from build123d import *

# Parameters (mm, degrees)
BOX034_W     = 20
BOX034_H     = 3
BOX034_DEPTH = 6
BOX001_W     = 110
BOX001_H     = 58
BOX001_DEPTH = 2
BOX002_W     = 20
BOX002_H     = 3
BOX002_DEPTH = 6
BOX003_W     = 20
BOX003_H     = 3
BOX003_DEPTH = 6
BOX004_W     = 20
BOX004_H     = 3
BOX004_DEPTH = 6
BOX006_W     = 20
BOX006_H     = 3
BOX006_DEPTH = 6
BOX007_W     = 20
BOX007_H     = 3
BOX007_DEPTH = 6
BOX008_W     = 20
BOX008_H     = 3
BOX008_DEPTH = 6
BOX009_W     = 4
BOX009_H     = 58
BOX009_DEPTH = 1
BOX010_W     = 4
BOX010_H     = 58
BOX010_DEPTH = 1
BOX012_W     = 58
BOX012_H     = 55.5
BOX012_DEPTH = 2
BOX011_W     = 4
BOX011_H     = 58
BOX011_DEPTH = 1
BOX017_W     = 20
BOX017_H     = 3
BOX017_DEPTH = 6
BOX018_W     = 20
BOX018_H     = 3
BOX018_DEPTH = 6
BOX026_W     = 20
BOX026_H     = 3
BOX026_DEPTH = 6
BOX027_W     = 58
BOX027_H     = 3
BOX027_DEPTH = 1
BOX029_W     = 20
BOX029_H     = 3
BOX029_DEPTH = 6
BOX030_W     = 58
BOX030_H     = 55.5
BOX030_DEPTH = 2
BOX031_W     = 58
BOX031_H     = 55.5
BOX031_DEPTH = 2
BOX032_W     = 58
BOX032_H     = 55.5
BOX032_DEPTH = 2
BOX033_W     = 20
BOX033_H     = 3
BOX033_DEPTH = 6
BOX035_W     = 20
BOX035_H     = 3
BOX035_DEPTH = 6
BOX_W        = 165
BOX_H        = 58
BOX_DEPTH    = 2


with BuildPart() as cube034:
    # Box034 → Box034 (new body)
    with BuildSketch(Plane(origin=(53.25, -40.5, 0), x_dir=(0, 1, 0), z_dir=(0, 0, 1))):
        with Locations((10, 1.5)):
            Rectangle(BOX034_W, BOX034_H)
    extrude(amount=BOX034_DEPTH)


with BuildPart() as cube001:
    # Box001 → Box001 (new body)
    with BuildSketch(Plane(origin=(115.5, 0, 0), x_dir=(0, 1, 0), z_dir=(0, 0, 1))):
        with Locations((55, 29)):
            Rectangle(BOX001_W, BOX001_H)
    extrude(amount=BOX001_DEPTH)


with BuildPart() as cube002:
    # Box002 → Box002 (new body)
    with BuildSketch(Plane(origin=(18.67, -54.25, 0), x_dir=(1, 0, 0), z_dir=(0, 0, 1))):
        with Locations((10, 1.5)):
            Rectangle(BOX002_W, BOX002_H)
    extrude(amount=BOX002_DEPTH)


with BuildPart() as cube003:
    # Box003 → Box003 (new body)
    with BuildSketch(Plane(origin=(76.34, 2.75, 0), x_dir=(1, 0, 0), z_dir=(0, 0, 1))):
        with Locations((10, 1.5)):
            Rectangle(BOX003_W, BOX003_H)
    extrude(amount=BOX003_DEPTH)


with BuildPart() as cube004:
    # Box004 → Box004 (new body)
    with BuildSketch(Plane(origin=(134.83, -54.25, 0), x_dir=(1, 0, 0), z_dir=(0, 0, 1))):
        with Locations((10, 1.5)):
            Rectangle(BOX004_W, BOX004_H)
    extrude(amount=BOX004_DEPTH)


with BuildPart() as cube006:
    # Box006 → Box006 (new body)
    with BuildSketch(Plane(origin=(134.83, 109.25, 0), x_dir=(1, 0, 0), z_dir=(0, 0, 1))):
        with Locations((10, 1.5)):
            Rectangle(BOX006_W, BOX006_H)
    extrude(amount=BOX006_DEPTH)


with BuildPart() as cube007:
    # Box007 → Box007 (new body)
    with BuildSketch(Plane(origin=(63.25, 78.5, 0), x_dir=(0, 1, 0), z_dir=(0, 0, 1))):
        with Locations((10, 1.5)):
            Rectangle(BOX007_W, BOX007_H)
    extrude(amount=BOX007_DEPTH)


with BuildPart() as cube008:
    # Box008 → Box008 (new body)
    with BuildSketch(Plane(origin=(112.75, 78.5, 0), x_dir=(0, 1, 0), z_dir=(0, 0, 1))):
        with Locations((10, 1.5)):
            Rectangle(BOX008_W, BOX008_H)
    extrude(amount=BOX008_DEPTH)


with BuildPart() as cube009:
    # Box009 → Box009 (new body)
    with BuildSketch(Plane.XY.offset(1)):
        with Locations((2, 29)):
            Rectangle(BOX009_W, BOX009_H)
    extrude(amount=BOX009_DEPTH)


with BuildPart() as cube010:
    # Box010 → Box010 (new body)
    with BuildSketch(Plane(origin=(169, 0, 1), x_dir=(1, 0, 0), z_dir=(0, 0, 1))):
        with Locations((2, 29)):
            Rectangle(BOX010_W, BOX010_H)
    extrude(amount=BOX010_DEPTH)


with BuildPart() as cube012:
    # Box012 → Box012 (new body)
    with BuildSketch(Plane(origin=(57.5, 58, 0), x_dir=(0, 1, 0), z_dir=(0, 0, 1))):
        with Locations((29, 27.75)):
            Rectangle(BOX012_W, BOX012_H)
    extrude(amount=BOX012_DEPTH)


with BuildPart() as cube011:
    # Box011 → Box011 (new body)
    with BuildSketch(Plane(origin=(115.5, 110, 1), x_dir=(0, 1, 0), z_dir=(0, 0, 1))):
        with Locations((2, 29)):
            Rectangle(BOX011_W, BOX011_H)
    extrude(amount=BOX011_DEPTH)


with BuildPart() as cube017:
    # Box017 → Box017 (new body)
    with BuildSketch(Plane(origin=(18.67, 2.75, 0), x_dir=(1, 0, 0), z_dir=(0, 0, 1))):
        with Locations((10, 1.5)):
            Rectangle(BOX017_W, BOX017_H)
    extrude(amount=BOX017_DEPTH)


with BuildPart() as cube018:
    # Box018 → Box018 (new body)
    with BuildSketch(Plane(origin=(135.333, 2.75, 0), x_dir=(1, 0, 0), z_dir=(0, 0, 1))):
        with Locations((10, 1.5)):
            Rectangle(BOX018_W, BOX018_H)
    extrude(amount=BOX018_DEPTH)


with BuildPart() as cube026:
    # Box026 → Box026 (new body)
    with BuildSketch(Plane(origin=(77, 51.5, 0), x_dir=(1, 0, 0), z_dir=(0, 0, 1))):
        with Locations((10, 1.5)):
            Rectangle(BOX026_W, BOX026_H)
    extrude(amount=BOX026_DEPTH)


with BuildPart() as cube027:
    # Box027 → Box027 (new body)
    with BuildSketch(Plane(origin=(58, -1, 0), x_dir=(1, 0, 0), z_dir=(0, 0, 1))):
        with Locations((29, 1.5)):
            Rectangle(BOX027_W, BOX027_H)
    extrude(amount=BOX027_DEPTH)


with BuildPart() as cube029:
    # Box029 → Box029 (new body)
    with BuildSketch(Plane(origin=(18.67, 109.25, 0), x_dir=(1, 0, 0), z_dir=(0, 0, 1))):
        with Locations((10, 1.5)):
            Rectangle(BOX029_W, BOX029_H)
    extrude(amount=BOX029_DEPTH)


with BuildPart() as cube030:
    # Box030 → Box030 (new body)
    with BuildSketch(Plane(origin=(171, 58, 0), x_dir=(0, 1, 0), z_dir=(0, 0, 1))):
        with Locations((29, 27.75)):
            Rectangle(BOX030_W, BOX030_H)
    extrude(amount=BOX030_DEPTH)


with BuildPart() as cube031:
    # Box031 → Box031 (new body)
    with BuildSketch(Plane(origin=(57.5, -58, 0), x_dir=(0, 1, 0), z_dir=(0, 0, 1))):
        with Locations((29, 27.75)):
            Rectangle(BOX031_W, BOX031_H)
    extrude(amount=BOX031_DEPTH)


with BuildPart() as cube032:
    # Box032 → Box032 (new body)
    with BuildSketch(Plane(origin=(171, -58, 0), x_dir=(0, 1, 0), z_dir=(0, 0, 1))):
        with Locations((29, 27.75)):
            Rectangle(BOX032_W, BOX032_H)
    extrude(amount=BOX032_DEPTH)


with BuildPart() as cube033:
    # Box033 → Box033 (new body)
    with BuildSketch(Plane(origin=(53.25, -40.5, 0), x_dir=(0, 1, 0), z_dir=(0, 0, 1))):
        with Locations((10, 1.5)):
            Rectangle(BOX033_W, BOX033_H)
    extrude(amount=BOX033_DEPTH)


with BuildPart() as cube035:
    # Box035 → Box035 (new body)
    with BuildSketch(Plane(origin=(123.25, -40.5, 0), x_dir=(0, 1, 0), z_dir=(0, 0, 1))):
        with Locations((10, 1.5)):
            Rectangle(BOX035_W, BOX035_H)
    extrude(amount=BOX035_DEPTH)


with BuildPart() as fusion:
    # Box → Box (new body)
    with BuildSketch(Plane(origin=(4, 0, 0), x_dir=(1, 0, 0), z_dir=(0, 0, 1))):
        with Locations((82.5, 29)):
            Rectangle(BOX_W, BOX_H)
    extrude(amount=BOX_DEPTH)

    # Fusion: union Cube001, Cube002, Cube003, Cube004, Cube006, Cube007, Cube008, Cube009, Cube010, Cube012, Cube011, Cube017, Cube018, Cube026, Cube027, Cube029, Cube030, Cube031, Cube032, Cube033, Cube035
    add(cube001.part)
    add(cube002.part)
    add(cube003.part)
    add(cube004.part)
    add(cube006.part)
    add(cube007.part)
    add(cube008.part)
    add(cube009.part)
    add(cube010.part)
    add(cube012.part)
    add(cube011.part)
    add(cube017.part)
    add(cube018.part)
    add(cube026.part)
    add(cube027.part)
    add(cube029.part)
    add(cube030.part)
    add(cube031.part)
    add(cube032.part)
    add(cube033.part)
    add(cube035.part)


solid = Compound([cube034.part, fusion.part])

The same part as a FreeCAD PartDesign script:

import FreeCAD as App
import Part
import Sketcher

V = App.Vector


def add_polygon(sketch, points):
    """Adds a closed chain of lines whose ends are joined by coincident constraints."""
    first, n = sketch.GeometryCount, len(points)
    for a, b in zip(points, points[1:] + points[:1]):
        sketch.addGeometry(Part.LineSegment(App.Vector(*a, 0), App.Vector(*b, 0)), False)
    for i in range(n):
        sketch.addConstraint(Sketcher.Constraint("Coincident", first + i, 2, first + (i + 1) % n, 1))

doc = App.newDocument("Part")
params = doc.addObject("Spreadsheet::Sheet", "Params")
for row, (alias, value) in enumerate([
    ("sketch1_width", "3 mm"),
    ("sketch1_height", "20 mm"),
    ("pad1_length", "6 mm"),
    ("sketch2_width", "58 mm"),
    ("sketch2_height", "110 mm"),
    ("pad2_length", "2 mm"),
    ("sketch3_width", "20 mm"),
    ("sketch3_height", "3 mm"),
    ("pad3_length", "6 mm"),
    ("sketch4_width", "20 mm"),
    ("sketch4_height", "3 mm"),
    ("pad4_length", "6 mm"),
    ("sketch5_width", "20 mm"),
    ("sketch5_height", "3 mm"),
    ("pad5_length", "6 mm"),
    ("sketch6_width", "20 mm"),
    ("sketch6_height", "3 mm"),
    ("pad6_length", "6 mm"),
    ("sketch7_width", "3 mm"),
    ("sketch7_height", "20 mm"),
    ("pad7_length", "6 mm"),
    ("sketch8_width", "3 mm"),
    ("sketch8_height", "20 mm"),
    ("pad8_length", "6 mm"),
    ("sketch9_width", "4 mm"),
    ("sketch9_height", "58 mm"),
    ("pad9_length", "1 mm"),
    ("sketch10_width", "4 mm"),
    ("sketch10_height", "58 mm"),
    ("pad10_length", "1 mm"),
    ("sketch11_height", "58 mm"),
    ("sketch11_width", "55.5 mm"),
    ("pad11_length", "2 mm"),
    ("sketch12_width", "58 mm"),
    ("sketch12_height", "4 mm"),
    ("pad12_length", "1 mm"),
    ("sketch13_width", "20 mm"),
    ("sketch13_height", "3 mm"),
    ("pad13_length", "6 mm"),
    ("sketch14_width", "20 mm"),
    ("sketch14_height", "3 mm"),
    ("pad14_length", "6 mm"),
    ("sketch15_width", "20 mm"),
    ("sketch15_height", "3 mm"),
    ("pad15_length", "6 mm"),
    ("sketch16_width", "58 mm"),
    ("sketch16_height", "3 mm"),
    ("pad16_length", "1 mm"),
    ("sketch17_width", "20 mm"),
    ("sketch17_height", "3 mm"),
    ("pad17_length", "6 mm"),
    ("sketch18_height", "58 mm"),
    ("sketch18_width", "55.5 mm"),
    ("pad18_length", "2 mm"),
    ("sketch19_height", "58 mm"),
    ("sketch19_width", "55.5 mm"),
    ("pad19_length", "2 mm"),
    ("sketch20_height", "58 mm"),
    ("sketch20_width", "55.5 mm"),
    ("pad20_length", "2 mm"),
    ("sketch21_width", "3 mm"),
    ("sketch21_height", "20 mm"),
    ("pad21_length", "6 mm"),
    ("sketch22_width", "3 mm"),
    ("sketch22_height", "20 mm"),
    ("pad22_length", "6 mm"),
    ("sketch23_width", "165 mm"),
    ("sketch23_height", "58 mm"),
    ("pad23_length", "2 mm"),
], start=1):
    params.set(f"A{row}", alias)
    params.set(f"B{row}", "=" + value)
    params.setAlias(f"B{row}", alias)

body = doc.addObject("PartDesign::Body", "Body")

sketch1 = body.newObject("Sketcher::SketchObject", "Sketch")
sketch1.AttachmentSupport = (doc.getObject("XY_Plane"), [""])
sketch1.MapMode = "FlatFace"
add_polygon(sketch1, [(50.2, -40.5), (53.2, -40.5), (53.2, -20.5), (50.2, -20.5)])
sketch1.addConstraint([
    Sketcher.Constraint("Horizontal", 0),
    Sketcher.Constraint("Vertical", 1),
    Sketcher.Constraint("Horizontal", 2),
    Sketcher.Constraint("Vertical", 3),
    Sketcher.Constraint("DistanceX", 0, 1, 0, 2, 3.0),
    Sketcher.Constraint("DistanceY", 1, 1, 1, 2, 20.0),
    Sketcher.Constraint("DistanceY", 0, 2, -1, 1, 40.5),
    Sketcher.Constraint("DistanceX", -1, 1, 0, 2, 53.25),
])
sketch1.setExpression("Constraints[8]", "Params.sketch1_width")
sketch1.setExpression("Constraints[9]", "Params.sketch1_height")
pad1 = body.newObject("PartDesign::Pad", "Pad")
pad1.Profile = sketch1
pad1.setExpression("Length", "Params.pad1_length")
body2 = doc.addObject("PartDesign::Body", "Body001")

sketch2 = body2.newObject("Sketcher::SketchObject", "Sketch001")
sketch2.AttachmentSupport = (doc.getObject("XY_Plane001"), [""])
sketch2.MapMode = "FlatFace"
add_polygon(sketch2, [(58, 0), (116, 0), (116, 110), (58, 110)])
sketch2.addConstraint([
    Sketcher.Constraint("Horizontal", 0),
    Sketcher.Constraint("Vertical", 1),
    Sketcher.Constraint("Horizontal", 2),
    Sketcher.Constraint("Vertical", 3),
    Sketcher.Constraint("PointOnObject", 0, 2, -1),
    Sketcher.Constraint("DistanceX", 0, 1, 0, 2, 58.0),
    Sketcher.Constraint("DistanceY", 1, 1, 1, 2, 110.0),
    Sketcher.Constraint("DistanceX", -1, 1, 0, 2, 115.5),
])
sketch2.setExpression("Constraints[9]", "Params.sketch2_width")
sketch2.setExpression("Constraints[10]", "Params.sketch2_height")
pad2 = body2.newObject("PartDesign::Pad", "Pad001")
pad2.Profile = sketch2
pad2.setExpression("Length", "Params.pad2_length")
body3 = doc.addObject("PartDesign::Body", "Body002")

sketch3 = body3.newObject("Sketcher::SketchObject", "Sketch002")
sketch3.AttachmentSupport = (doc.getObject("XY_Plane002"), [""])
sketch3.MapMode = "FlatFace"
add_polygon(sketch3, [(18.7, -51.2), (18.7, -54.2), (38.7, -54.2), (38.7, -51.2)])
sketch3.addConstraint([
    Sketcher.Constraint("Vertical", 0),
    Sketcher.Constraint("Horizontal", 1),
    Sketcher.Constraint("Vertical", 2),
    Sketcher.Constraint("Horizontal", 3),
    Sketcher.Constraint("DistanceX", 1, 1, 1, 2, 20.0),
    Sketcher.Constraint("DistanceY", 0, 2, 0, 1, 3.0),
    Sketcher.Constraint("DistanceX", -1, 1, 0, 2, 18.67),
    Sketcher.Constraint("DistanceY", 0, 2, -1, 1, 54.25),
])
sketch3.setExpression("Constraints[8]", "Params.sketch3_width")
sketch3.setExpression("Constraints[9]", "Params.sketch3_height")
pad3 = body3.newObject("PartDesign::Pad", "Pad002")
pad3.Profile = sketch3
pad3.setExpression("Length", "Params.pad3_length")
body4 = doc.addObject("PartDesign::Body", "Body003")

sketch4 = body4.newObject("Sketcher::SketchObject", "Sketch003")
sketch4.AttachmentSupport = (doc.getObject("XY_Plane003"), [""])
sketch4.MapMode = "FlatFace"
add_polygon(sketch4, [(76.3, 5.8), (76.3, 2.8), (96.3, 2.8), (96.3, 5.8)])
sketch4.addConstraint([
    Sketcher.Constraint("Vertical", 0),
    Sketcher.Constraint("Horizontal", 1),
    Sketcher.Constraint("Vertical", 2),
    Sketcher.Constraint("Horizontal", 3),
    Sketcher.Constraint("DistanceX", 1, 1, 1, 2, 20.0),
    Sketcher.Constraint("DistanceY", 0, 2, 0, 1, 3.0),
    Sketcher.Constraint("DistanceX", -1, 1, 0, 2, 76.34),
    Sketcher.Constraint("DistanceY", -1, 1, 0, 2, 2.75),
])
sketch4.setExpression("Constraints[8]", "Params.sketch4_width")
sketch4.setExpression("Constraints[9]", "Params.sketch4_height")
pad4 = body4.newObject("PartDesign::Pad", "Pad003")
pad4.Profile = sketch4
pad4.setExpression("Length", "Params.pad4_length")
body5 = doc.addObject("PartDesign::Body", "Body004")

sketch5 = body5.newObject("Sketcher::SketchObject", "Sketch004")
sketch5.AttachmentSupport = (doc.getObject("XY_Plane004"), [""])
sketch5.MapMode = "FlatFace"
add_polygon(sketch5, [(134.8, -51.2), (134.8, -54.2), (154.8, -54.2), (154.8, -51.2)])
sketch5.addConstraint([
    Sketcher.Constraint("Vertical", 0),
    Sketcher.Constraint("Horizontal", 1),
    Sketcher.Constraint("Vertical", 2),
    Sketcher.Constraint("Horizontal", 3),
    Sketcher.Constraint("DistanceX", 1, 1, 1, 2, 20.0),
    Sketcher.Constraint("DistanceY", 0, 2, 0, 1, 3.0),
    Sketcher.Constraint("DistanceX", -1, 1, 0, 2, 134.83),
    Sketcher.Constraint("DistanceY", 0, 2, -1, 1, 54.25),
])
sketch5.setExpression("Constraints[8]", "Params.sketch5_width")
sketch5.setExpression("Constraints[9]", "Params.sketch5_height")
pad5 = body5.newObject("PartDesign::Pad", "Pad004")
pad5.Profile = sketch5
pad5.setExpression("Length", "Params.pad5_length")
body6 = doc.addObject("PartDesign::Body", "Body005")

sketch6 = body6.newObject("Sketcher::SketchObject", "Sketch005")
sketch6.AttachmentSupport = (doc.getObject("XY_Plane005"), [""])
sketch6.MapMode = "FlatFace"
add_polygon(sketch6, [(134.8, 112.2), (134.8, 109.2), (154.8, 109.2), (154.8, 112.2)])
sketch6.addConstraint([
    Sketcher.Constraint("Vertical", 0),
    Sketcher.Constraint("Horizontal", 1),
    Sketcher.Constraint("Vertical", 2),
    Sketcher.Constraint("Horizontal", 3),
    Sketcher.Constraint("DistanceX", 1, 1, 1, 2, 20.0),
    Sketcher.Constraint("DistanceY", 0, 2, 0, 1, 3.0),
    Sketcher.Constraint("DistanceX", -1, 1, 0, 2, 134.83),
    Sketcher.Constraint("DistanceY", -1, 1, 0, 2, 109.25),
])
sketch6.setExpression("Constraints[8]", "Params.sketch6_width")
sketch6.setExpression("Constraints[9]", "Params.sketch6_height")
pad6 = body6.newObject("PartDesign::Pad", "Pad005")
pad6.Profile = sketch6
pad6.setExpression("Length", "Params.pad6_length")
body7 = doc.addObject("PartDesign::Body", "Body006")

sketch7 = body7.newObject("Sketcher::SketchObject", "Sketch006")
sketch7.AttachmentSupport = (doc.getObject("XY_Plane006"), [""])
sketch7.MapMode = "FlatFace"
add_polygon(sketch7, [(60.2, 78.5), (63.2, 78.5), (63.2, 98.5), (60.2, 98.5)])
sketch7.addConstraint([
    Sketcher.Constraint("Horizontal", 0),
    Sketcher.Constraint("Vertical", 1),
    Sketcher.Constraint("Horizontal", 2),
    Sketcher.Constraint("Vertical", 3),
    Sketcher.Constraint("DistanceX", 0, 1, 0, 2, 3.0),
    Sketcher.Constraint("DistanceY", 1, 1, 1, 2, 20.0),
    Sketcher.Constraint("DistanceY", -1, 1, 0, 2, 78.5),
    Sketcher.Constraint("DistanceX", -1, 1, 0, 2, 63.25),
])
sketch7.setExpression("Constraints[8]", "Params.sketch7_width")
sketch7.setExpression("Constraints[9]", "Params.sketch7_height")
pad7 = body7.newObject("PartDesign::Pad", "Pad006")
pad7.Profile = sketch7
pad7.setExpression("Length", "Params.pad7_length")
body8 = doc.addObject("PartDesign::Body", "Body007")

sketch8 = body8.newObject("Sketcher::SketchObject", "Sketch007")
sketch8.AttachmentSupport = (doc.getObject("XY_Plane007"), [""])
sketch8.MapMode = "FlatFace"
add_polygon(sketch8, [(109.8, 78.5), (112.8, 78.5), (112.8, 98.5), (109.8, 98.5)])
sketch8.addConstraint([
    Sketcher.Constraint("Horizontal", 0),
    Sketcher.Constraint("Vertical", 1),
    Sketcher.Constraint("Horizontal", 2),
    Sketcher.Constraint("Vertical", 3),
    Sketcher.Constraint("DistanceX", 0, 1, 0, 2, 3.0),
    Sketcher.Constraint("DistanceY", 1, 1, 1, 2, 20.0),
    Sketcher.Constraint("DistanceY", -1, 1, 0, 2, 78.5),
    Sketcher.Constraint("DistanceX", -1, 1, 0, 2, 112.75),
])
sketch8.setExpression("Constraints[8]", "Params.sketch8_width")
sketch8.setExpression("Constraints[9]", "Params.sketch8_height")
pad8 = body8.newObject("PartDesign::Pad", "Pad007")
pad8.Profile = sketch8
pad8.setExpression("Length", "Params.pad8_length")
body9 = doc.addObject("PartDesign::Body", "Body008")

sketch9 = body9.newObject("Sketcher::SketchObject", "Sketch008")
sketch9.AttachmentSupport = (doc.getObject("XY_Plane008"), [""])
sketch9.MapMode = "FlatFace"
sketch9.AttachmentOffset = App.Placement(V(0, 0, 1), App.Rotation())
add_polygon(sketch9, [(0, 58), (0, 0), (4, 0), (4, 58)])
sketch9.addConstraint([
    Sketcher.Constraint("Vertical", 0),
    Sketcher.Constraint("Horizontal", 1),
    Sketcher.Constraint("Vertical", 2),
    Sketcher.Constraint("Horizontal", 3),
    Sketcher.Constraint("Coincident", 0, 2, -1, 1),
    Sketcher.Constraint("DistanceX", 1, 1, 1, 2, 4.0),
    Sketcher.Constraint("DistanceY", 0, 2, 0, 1, 58.0),
])
sketch9.setExpression("Constraints[9]", "Params.sketch9_width")
sketch9.setExpression("Constraints[10]", "Params.sketch9_height")
pad9 = body9.newObject("PartDesign::Pad", "Pad008")
pad9.Profile = sketch9
pad9.setExpression("Length", "Params.pad9_length")
body10 = doc.addObject("PartDesign::Body", "Body009")

sketch10 = body10.newObject("Sketcher::SketchObject", "Sketch009")
sketch10.AttachmentSupport = (doc.getObject("XY_Plane009"), [""])
sketch10.MapMode = "FlatFace"
sketch10.AttachmentOffset = App.Placement(V(0, 0, 1), App.Rotation())
add_polygon(sketch10, [(169, 58), (169, 0), (173, 0), (173, 58)])
sketch10.addConstraint([
    Sketcher.Constraint("Vertical", 0),
    Sketcher.Constraint("Horizontal", 1),
    Sketcher.Constraint("Vertical", 2),
    Sketcher.Constraint("Horizontal", 3),
    Sketcher.Constraint("PointOnObject", 0, 2, -1),
    Sketcher.Constraint("DistanceX", 1, 1, 1, 2, 4.0),
    Sketcher.Constraint("DistanceY", 0, 2, 0, 1, 58.0),
    Sketcher.Constraint("DistanceX", -1, 1, 0, 2, 169.0),
])
sketch10.setExpression("Constraints[9]", "Params.sketch10_width")
sketch10.setExpression("Constraints[10]", "Params.sketch10_height")
pad10 = body10.newObject("PartDesign::Pad", "Pad009")
pad10.Profile = sketch10
pad10.setExpression("Length", "Params.pad10_length")
body11 = doc.addObject("PartDesign::Body", "Body010")

sketch11 = body11.newObject("Sketcher::SketchObject", "Sketch010")
sketch11.AttachmentSupport = (doc.getObject("XY_Plane010"), [""])
sketch11.MapMode = "FlatFace"
add_polygon(sketch11, [(2, 58), (58, 58), (58, 116), (2, 116)])
sketch11.addConstraint([
    Sketcher.Constraint("Horizontal", 0),
    Sketcher.Constraint("Vertical", 1),
    Sketcher.Constraint("Horizontal", 2),
    Sketcher.Constraint("Vertical", 3),
    Sketcher.Constraint("DistanceY", 1, 1, 1, 2, 58.0),
    Sketcher.Constraint("DistanceX", 0, 1, 0, 2, 55.5),
    Sketcher.Constraint("DistanceY", -1, 1, 0, 2, 58.0),
    Sketcher.Constraint("DistanceX", -1, 1, 2, 2, 2.0),
])
sketch11.setExpression("Constraints[8]", "Params.sketch11_height")
sketch11.setExpression("Constraints[9]", "Params.sketch11_width")
pad11 = body11.newObject("PartDesign::Pad", "Pad010")
pad11.Profile = sketch11
pad11.setExpression("Length", "Params.pad11_length")
body12 = doc.addObject("PartDesign::Body", "Body011")

sketch12 = body12.newObject("Sketcher::SketchObject", "Sketch011")
sketch12.AttachmentSupport = (doc.getObject("XY_Plane011"), [""])
sketch12.MapMode = "FlatFace"
sketch12.AttachmentOffset = App.Placement(V(0, 0, 1), App.Rotation())
add_polygon(sketch12, [(57.5, 110), (115.5, 110), (115.5, 114), (57.5, 114)])
sketch12.addConstraint([
    Sketcher.Constraint("Horizontal", 0),
    Sketcher.Constraint("Vertical", 1),
    Sketcher.Constraint("Horizontal", 2),
    Sketcher.Constraint("Vertical", 3),
    Sketcher.Constraint("DistanceX", 0, 1, 0, 2, 58.0),
    Sketcher.Constraint("DistanceY", 1, 1, 1, 2, 4.0),
    Sketcher.Constraint("DistanceY", -1, 1, 0, 2, 110.0),
    Sketcher.Constraint("DistanceX", -1, 1, 0, 2, 115.5),
])
sketch12.setExpression("Constraints[8]", "Params.sketch12_width")
sketch12.setExpression("Constraints[9]", "Params.sketch12_height")
pad12 = body12.newObject("PartDesign::Pad", "Pad011")
pad12.Profile = sketch12
pad12.setExpression("Length", "Params.pad12_length")
body13 = doc.addObject("PartDesign::Body", "Body012")

sketch13 = body13.newObject("Sketcher::SketchObject", "Sketch012")
sketch13.AttachmentSupport = (doc.getObject("XY_Plane012"), [""])
sketch13.MapMode = "FlatFace"
add_polygon(sketch13, [(18.7, 5.8), (18.7, 2.8), (38.7, 2.8), (38.7, 5.8)])
sketch13.addConstraint([
    Sketcher.Constraint("Vertical", 0),
    Sketcher.Constraint("Horizontal", 1),
    Sketcher.Constraint("Vertical", 2),
    Sketcher.Constraint("Horizontal", 3),
    Sketcher.Constraint("DistanceX", 1, 1, 1, 2, 20.0),
    Sketcher.Constraint("DistanceY", 0, 2, 0, 1, 3.0),
    Sketcher.Constraint("DistanceX", -1, 1, 0, 2, 18.67),
    Sketcher.Constraint("DistanceY", -1, 1, 0, 2, 2.75),
])
sketch13.setExpression("Constraints[8]", "Params.sketch13_width")
sketch13.setExpression("Constraints[9]", "Params.sketch13_height")
pad13 = body13.newObject("PartDesign::Pad", "Pad012")
pad13.Profile = sketch13
pad13.setExpression("Length", "Params.pad13_length")
body14 = doc.addObject("PartDesign::Body", "Body013")

sketch14 = body14.newObject("Sketcher::SketchObject", "Sketch013")
sketch14.AttachmentSupport = (doc.getObject("XY_Plane013"), [""])
sketch14.MapMode = "FlatFace"
add_polygon(sketch14, [(135.3, 5.8), (135.3, 2.8), (155.3, 2.8), (155.3, 5.8)])
sketch14.addConstraint([
    Sketcher.Constraint("Vertical", 0),
    Sketcher.Constraint("Horizontal", 1),
    Sketcher.Constraint("Vertical", 2),
    Sketcher.Constraint("Horizontal", 3),
    Sketcher.Constraint("DistanceX", 1, 1, 1, 2, 20.0),
    Sketcher.Constraint("DistanceY", 0, 2, 0, 1, 3.0),
    Sketcher.Constraint("DistanceY", -1, 1, 0, 2, 2.75),
    Sketcher.Constraint("DistanceX", -1, 1, 0, 2, 135.333),
])
sketch14.setExpression("Constraints[8]", "Params.sketch14_width")
sketch14.setExpression("Constraints[9]", "Params.sketch14_height")
pad14 = body14.newObject("PartDesign::Pad", "Pad013")
pad14.Profile = sketch14
pad14.setExpression("Length", "Params.pad14_length")
body15 = doc.addObject("PartDesign::Body", "Body014")

sketch15 = body15.newObject("Sketcher::SketchObject", "Sketch014")
sketch15.AttachmentSupport = (doc.getObject("XY_Plane014"), [""])
sketch15.MapMode = "FlatFace"
add_polygon(sketch15, [(77, 54.5), (77, 51.5), (97, 51.5), (97, 54.5)])
sketch15.addConstraint([
    Sketcher.Constraint("Vertical", 0),
    Sketcher.Constraint("Horizontal", 1),
    Sketcher.Constraint("Vertical", 2),
    Sketcher.Constraint("Horizontal", 3),
    Sketcher.Constraint("DistanceX", 1, 1, 1, 2, 20.0),
    Sketcher.Constraint("DistanceY", 0, 2, 0, 1, 3.0),
    Sketcher.Constraint("DistanceX", -1, 1, 0, 2, 77.0),
    Sketcher.Constraint("DistanceY", -1, 1, 0, 2, 51.5),
])
sketch15.setExpression("Constraints[8]", "Params.sketch15_width")
sketch15.setExpression("Constraints[9]", "Params.sketch15_height")
pad15 = body15.newObject("PartDesign::Pad", "Pad014")
pad15.Profile = sketch15
pad15.setExpression("Length", "Params.pad15_length")
body16 = doc.addObject("PartDesign::Body", "Body015")

sketch16 = body16.newObject("Sketcher::SketchObject", "Sketch015")
sketch16.AttachmentSupport = (doc.getObject("XY_Plane015"), [""])
sketch16.MapMode = "FlatFace"
add_polygon(sketch16, [(58, 2), (58, -1), (116, -1), (116, 2)])
sketch16.addConstraint([
    Sketcher.Constraint("Vertical", 0),
    Sketcher.Constraint("Horizontal", 1),
    Sketcher.Constraint("Vertical", 2),
    Sketcher.Constraint("Horizontal", 3),
    Sketcher.Constraint("DistanceX", 1, 1, 1, 2, 58.0),
    Sketcher.Constraint("DistanceY", 0, 2, 0, 1, 3.0),
    Sketcher.Constraint("DistanceX", -1, 1, 0, 2, 58.0),
    Sketcher.Constraint("DistanceY", 0, 2, -1, 1, 1.0),
])
sketch16.setExpression("Constraints[8]", "Params.sketch16_width")
sketch16.setExpression("Constraints[9]", "Params.sketch16_height")
pad16 = body16.newObject("PartDesign::Pad", "Pad015")
pad16.Profile = sketch16
pad16.setExpression("Length", "Params.pad16_length")
body17 = doc.addObject("PartDesign::Body", "Body016")

sketch17 = body17.newObject("Sketcher::SketchObject", "Sketch016")
sketch17.AttachmentSupport = (doc.getObject("XY_Plane016"), [""])
sketch17.MapMode = "FlatFace"
add_polygon(sketch17, [(18.7, 112.2), (18.7, 109.2), (38.7, 109.2), (38.7, 112.2)])
sketch17.addConstraint([
    Sketcher.Constraint("Vertical", 0),
    Sketcher.Constraint("Horizontal", 1),
    Sketcher.Constraint("Vertical", 2),
    Sketcher.Constraint("Horizontal", 3),
    Sketcher.Constraint("DistanceX", 1, 1, 1, 2, 20.0),
    Sketcher.Constraint("DistanceY", 0, 2, 0, 1, 3.0),
    Sketcher.Constraint("DistanceX", -1, 1, 0, 2, 18.67),
    Sketcher.Constraint("DistanceY", -1, 1, 0, 2, 109.25),
])
sketch17.setExpression("Constraints[8]", "Params.sketch17_width")
sketch17.setExpression("Constraints[9]", "Params.sketch17_height")
pad17 = body17.newObject("PartDesign::Pad", "Pad016")
pad17.Profile = sketch17
pad17.setExpression("Length", "Params.pad17_length")
body18 = doc.addObject("PartDesign::Body", "Body017")

sketch18 = body18.newObject("Sketcher::SketchObject", "Sketch017")
sketch18.AttachmentSupport = (doc.getObject("XY_Plane017"), [""])
sketch18.MapMode = "FlatFace"
add_polygon(sketch18, [(116, 58), (171, 58), (171, 116), (116, 116)])
sketch18.addConstraint([
    Sketcher.Constraint("Horizontal", 0),
    Sketcher.Constraint("Vertical", 1),
    Sketcher.Constraint("Horizontal", 2),
    Sketcher.Constraint("Vertical", 3),
    Sketcher.Constraint("DistanceY", 1, 1, 1, 2, 58.0),
    Sketcher.Constraint("DistanceX", 0, 1, 0, 2, 55.5),
    Sketcher.Constraint("DistanceX", -1, 1, 0, 2, 171.0),
    Sketcher.Constraint("DistanceY", -1, 1, 0, 2, 58.0),
])
sketch18.setExpression("Constraints[8]", "Params.sketch18_height")
sketch18.setExpression("Constraints[9]", "Params.sketch18_width")
pad18 = body18.newObject("PartDesign::Pad", "Pad017")
pad18.Profile = sketch18
pad18.setExpression("Length", "Params.pad18_length")
body19 = doc.addObject("PartDesign::Body", "Body018")

sketch19 = body19.newObject("Sketcher::SketchObject", "Sketch018")
sketch19.AttachmentSupport = (doc.getObject("XY_Plane018"), [""])
sketch19.MapMode = "FlatFace"
add_polygon(sketch19, [(2, -58), (58, -58), (58, 0), (2, 0)])
sketch19.addConstraint([
    Sketcher.Constraint("Horizontal", 0),
    Sketcher.Constraint("Vertical", 1),
    Sketcher.Constraint("Horizontal", 2),
    Sketcher.Constraint("Vertical", 3),
    Sketcher.Constraint("PointOnObject", 1, 2, -1),
    Sketcher.Constraint("DistanceY", 1, 1, 1, 2, 58.0),
    Sketcher.Constraint("DistanceX", 0, 1, 0, 2, 55.5),
    Sketcher.Constraint("DistanceX", -1, 1, 2, 2, 2.0),
])
sketch19.setExpression("Constraints[9]", "Params.sketch19_height")
sketch19.setExpression("Constraints[10]", "Params.sketch19_width")
pad19 = body19.newObject("PartDesign::Pad", "Pad018")
pad19.Profile = sketch19
pad19.setExpression("Length", "Params.pad19_length")
body20 = doc.addObject("PartDesign::Body", "Body019")

sketch20 = body20.newObject("Sketcher::SketchObject", "Sketch019")
sketch20.AttachmentSupport = (doc.getObject("XY_Plane019"), [""])
sketch20.MapMode = "FlatFace"
add_polygon(sketch20, [(116, -58), (171, -58), (171, 0), (116, 0)])
sketch20.addConstraint([
    Sketcher.Constraint("Horizontal", 0),
    Sketcher.Constraint("Vertical", 1),
    Sketcher.Constraint("Horizontal", 2),
    Sketcher.Constraint("Vertical", 3),
    Sketcher.Constraint("PointOnObject", 1, 2, -1),
    Sketcher.Constraint("DistanceY", 1, 1, 1, 2, 58.0),
    Sketcher.Constraint("DistanceX", 0, 1, 0, 2, 55.5),
    Sketcher.Constraint("DistanceX", -1, 1, 0, 2, 171.0),
])
sketch20.setExpression("Constraints[9]", "Params.sketch20_height")
sketch20.setExpression("Constraints[10]", "Params.sketch20_width")
pad20 = body20.newObject("PartDesign::Pad", "Pad019")
pad20.Profile = sketch20
pad20.setExpression("Length", "Params.pad20_length")
body21 = doc.addObject("PartDesign::Body", "Body020")

sketch21 = body21.newObject("Sketcher::SketchObject", "Sketch020")
sketch21.AttachmentSupport = (doc.getObject("XY_Plane020"), [""])
sketch21.MapMode = "FlatFace"
add_polygon(sketch21, [(50.2, -40.5), (53.2, -40.5), (53.2, -20.5), (50.2, -20.5)])
sketch21.addConstraint([
    Sketcher.Constraint("Horizontal", 0),
    Sketcher.Constraint("Vertical", 1),
    Sketcher.Constraint("Horizontal", 2),
    Sketcher.Constraint("Vertical", 3),
    Sketcher.Constraint("DistanceX", 0, 1, 0, 2, 3.0),
    Sketcher.Constraint("DistanceY", 1, 1, 1, 2, 20.0),
    Sketcher.Constraint("DistanceY", 0, 2, -1, 1, 40.5),
    Sketcher.Constraint("DistanceX", -1, 1, 0, 2, 53.25),
])
sketch21.setExpression("Constraints[8]", "Params.sketch21_width")
sketch21.setExpression("Constraints[9]", "Params.sketch21_height")
pad21 = body21.newObject("PartDesign::Pad", "Pad020")
pad21.Profile = sketch21
pad21.setExpression("Length", "Params.pad21_length")
body22 = doc.addObject("PartDesign::Body", "Body021")

sketch22 = body22.newObject("Sketcher::SketchObject", "Sketch021")
sketch22.AttachmentSupport = (doc.getObject("XY_Plane021"), [""])
sketch22.MapMode = "FlatFace"
add_polygon(sketch22, [(120.2, -40.5), (123.2, -40.5), (123.2, -20.5), (120.2, -20.5)])
sketch22.addConstraint([
    Sketcher.Constraint("Horizontal", 0),
    Sketcher.Constraint("Vertical", 1),
    Sketcher.Constraint("Horizontal", 2),
    Sketcher.Constraint("Vertical", 3),
    Sketcher.Constraint("DistanceX", 0, 1, 0, 2, 3.0),
    Sketcher.Constraint("DistanceY", 1, 1, 1, 2, 20.0),
    Sketcher.Constraint("DistanceY", 0, 2, -1, 1, 40.5),
    Sketcher.Constraint("DistanceX", -1, 1, 0, 2, 123.25),
])
sketch22.setExpression("Constraints[8]", "Params.sketch22_width")
sketch22.setExpression("Constraints[9]", "Params.sketch22_height")
pad22 = body22.newObject("PartDesign::Pad", "Pad021")
pad22.Profile = sketch22
pad22.setExpression("Length", "Params.pad22_length")
body23 = doc.addObject("PartDesign::Body", "Body022")
body23.AllowCompound = True

sketch23 = body23.newObject("Sketcher::SketchObject", "Sketch022")
sketch23.AttachmentSupport = (doc.getObject("XY_Plane022"), [""])
sketch23.MapMode = "FlatFace"
add_polygon(sketch23, [(4, 58), (4, 0), (169, 0), (169, 58)])
sketch23.addConstraint([
    Sketcher.Constraint("Vertical", 0),
    Sketcher.Constraint("Horizontal", 1),
    Sketcher.Constraint("Vertical", 2),
    Sketcher.Constraint("Horizontal", 3),
    Sketcher.Constraint("PointOnObject", 0, 2, -1),
    Sketcher.Constraint("DistanceX", 1, 1, 1, 2, 165.0),
    Sketcher.Constraint("DistanceY", 0, 2, 0, 1, 58.0),
    Sketcher.Constraint("DistanceX", -1, 1, 0, 2, 4.0),
])
sketch23.setExpression("Constraints[9]", "Params.sketch23_width")
sketch23.setExpression("Constraints[10]", "Params.sketch23_height")
pad23 = body23.newObject("PartDesign::Pad", "Pad022")
pad23.Profile = sketch23
pad23.setExpression("Length", "Params.pad23_length")
doc.recompute()

boolean = body23.newObject("PartDesign::Boolean", "Boolean")
boolean.Type = "Fuse"
boolean.addObjects([body2])
doc.recompute()

boolean2 = body23.newObject("PartDesign::Boolean", "Boolean001")
boolean2.Type = "Fuse"
boolean2.addObjects([body3])
doc.recompute()

boolean3 = body23.newObject("PartDesign::Boolean", "Boolean002")
boolean3.Type = "Fuse"
boolean3.addObjects([body4])
doc.recompute()

boolean4 = body23.newObject("PartDesign::Boolean", "Boolean003")
boolean4.Type = "Fuse"
boolean4.addObjects([body5])
doc.recompute()

boolean5 = body23.newObject("PartDesign::Boolean", "Boolean004")
boolean5.Type = "Fuse"
boolean5.addObjects([body6])
doc.recompute()

boolean6 = body23.newObject("PartDesign::Boolean", "Boolean005")
boolean6.Type = "Fuse"
boolean6.addObjects([body7])
doc.recompute()

boolean7 = body23.newObject("PartDesign::Boolean", "Boolean006")
boolean7.Type = "Fuse"
boolean7.addObjects([body8])
doc.recompute()

boolean8 = body23.newObject("PartDesign::Boolean", "Boolean007")
boolean8.Type = "Fuse"
boolean8.addObjects([body9])
doc.recompute()

boolean9 = body23.newObject("PartDesign::Boolean", "Boolean008")
boolean9.Type = "Fuse"
boolean9.addObjects([body10])
doc.recompute()

boolean10 = body23.newObject("PartDesign::Boolean", "Boolean009")
boolean10.Type = "Fuse"
boolean10.addObjects([body11])
doc.recompute()

boolean11 = body23.newObject("PartDesign::Boolean", "Boolean010")
boolean11.Type = "Fuse"
boolean11.addObjects([body12])
doc.recompute()

boolean12 = body23.newObject("PartDesign::Boolean", "Boolean011")
boolean12.Type = "Fuse"
boolean12.addObjects([body13])
doc.recompute()

boolean13 = body23.newObject("PartDesign::Boolean", "Boolean012")
boolean13.Type = "Fuse"
boolean13.addObjects([body14])
doc.recompute()

boolean14 = body23.newObject("PartDesign::Boolean", "Boolean013")
boolean14.Type = "Fuse"
boolean14.addObjects([body15])
doc.recompute()

boolean15 = body23.newObject("PartDesign::Boolean", "Boolean014")
boolean15.Type = "Fuse"
boolean15.addObjects([body16])
doc.recompute()

boolean16 = body23.newObject("PartDesign::Boolean", "Boolean015")
boolean16.Type = "Fuse"
boolean16.addObjects([body17])
doc.recompute()

boolean17 = body23.newObject("PartDesign::Boolean", "Boolean016")
boolean17.Type = "Fuse"
boolean17.addObjects([body18])
doc.recompute()

boolean18 = body23.newObject("PartDesign::Boolean", "Boolean017")
boolean18.Type = "Fuse"
boolean18.addObjects([body19])
doc.recompute()

boolean19 = body23.newObject("PartDesign::Boolean", "Boolean018")
boolean19.Type = "Fuse"
boolean19.addObjects([body20])
doc.recompute()

boolean20 = body23.newObject("PartDesign::Boolean", "Boolean019")
boolean20.Type = "Fuse"
boolean20.addObjects([body21])
doc.recompute()

boolean21 = body23.newObject("PartDesign::Boolean", "Boolean020")
boolean21.Type = "Fuse"
boolean21.addObjects([body22])

doc.recompute()
